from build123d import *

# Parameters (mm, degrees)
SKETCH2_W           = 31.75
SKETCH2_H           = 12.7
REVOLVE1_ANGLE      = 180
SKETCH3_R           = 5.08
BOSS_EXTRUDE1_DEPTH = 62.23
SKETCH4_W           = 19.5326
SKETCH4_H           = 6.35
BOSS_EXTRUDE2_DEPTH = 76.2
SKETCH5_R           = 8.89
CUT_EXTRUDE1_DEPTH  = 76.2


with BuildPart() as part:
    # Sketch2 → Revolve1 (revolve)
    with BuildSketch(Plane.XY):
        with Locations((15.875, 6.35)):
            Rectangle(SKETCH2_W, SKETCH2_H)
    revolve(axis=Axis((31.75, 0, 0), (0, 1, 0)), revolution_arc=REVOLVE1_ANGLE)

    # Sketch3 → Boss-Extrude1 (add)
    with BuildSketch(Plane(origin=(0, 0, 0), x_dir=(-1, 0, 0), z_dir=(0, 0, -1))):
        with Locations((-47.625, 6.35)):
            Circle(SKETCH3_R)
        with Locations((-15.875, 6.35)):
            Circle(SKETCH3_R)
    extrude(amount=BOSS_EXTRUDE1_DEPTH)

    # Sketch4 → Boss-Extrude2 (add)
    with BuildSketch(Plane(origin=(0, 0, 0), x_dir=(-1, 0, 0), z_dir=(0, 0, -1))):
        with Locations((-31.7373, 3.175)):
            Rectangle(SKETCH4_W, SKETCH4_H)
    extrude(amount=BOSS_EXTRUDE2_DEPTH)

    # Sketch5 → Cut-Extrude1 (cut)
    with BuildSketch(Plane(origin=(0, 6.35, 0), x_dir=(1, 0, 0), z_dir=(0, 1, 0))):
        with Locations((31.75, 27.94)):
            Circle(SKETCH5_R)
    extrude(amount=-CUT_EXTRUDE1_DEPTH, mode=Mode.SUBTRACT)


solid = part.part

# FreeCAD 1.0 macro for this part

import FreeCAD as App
import Part
import Sketcher

V = App.Vector
Q = App.Units.Quantity


def add_polygon(sketch, points):
    """Adds a closed chain of lines whose ends are joined by coincident constraints."""
    first, n = sketch.GeometryCount, len(points)
    for a, b in zip(points, points[1:] + points[:1]):
        sketch.addGeometry(Part.LineSegment(App.Vector(*a, 0), App.Vector(*b, 0)), False)
    for i in range(n):
        sketch.addConstraint(Sketcher.Constraint("Coincident", first + i, 2, first + (i + 1) % n, 1))

doc = App.newDocument("Part")
body = doc.addObject("PartDesign::Body", "Body")

# Sketch on XY plane
sketch1 = body.newObject("Sketcher::SketchObject", "Sketch")
sketch1.AttachmentSupport = (doc.getObject("XY_Plane"), [""])
sketch1.MapMode = "FlatFace"
add_polygon(sketch1, [(0, 13), (0, 0), (32, 0), (32, 13)])  # lines 0-3
sketch1.addGeometry(Part.LineSegment(V(32, 0, 0), V(32, 13, 0)), True)  # axis
sketch1.addConstraint(Sketcher.Constraint("Vertical", 0))
sketch1.addConstraint(Sketcher.Constraint("Horizontal", 1))
sketch1.addConstraint(Sketcher.Constraint("Vertical", 2))
sketch1.addConstraint(Sketcher.Constraint("Horizontal", 3))
sketch1.addConstraint(Sketcher.Constraint("Vertical", 4))
sketch1.addConstraint(Sketcher.Constraint("Coincident", 0, 2, -1, 1))
sketch1.addConstraint(Sketcher.Constraint("Coincident", 4, 1, 1, 2))
sketch1.addConstraint(Sketcher.Constraint("Horizontal", 3, 2, 4, 2))
sketch1.addConstraint(Sketcher.Constraint("DistanceY", 0, 2, 0, 1, Q("0.5 in")))
sketch1.addConstraint(Sketcher.Constraint("DistanceX", 1, 1, 1, 2, Q("1.25 in")))
revolution = body.newObject("PartDesign::Revolution", "Revolution")
revolution.Profile = sketch1
revolution.ReferenceAxis = (sketch1, ["Axis0"])
revolution.Angle = 180

# Sketch on XY plane
sketch2 = body.newObject("Sketcher::SketchObject", "Sketch001")
sketch2.AttachmentSupport = (doc.getObject("XY_Plane"), [""])
sketch2.MapMode = "FlatFace"
sketch2.addGeometry(Part.Circle(V(48, 6, 0), V(0, 0, 1), 5), False)
sketch2.addGeometry(Part.Circle(V(16, 6, 0), V(0, 0, 1), 5), False)
sketch2.addConstraint(Sketcher.Constraint("Equal", 0, 1))
sketch2.addConstraint(Sketcher.Constraint("Horizontal", 0, 3, 1, 3))
sketch2.addConstraint(Sketcher.Constraint("Diameter", 0, Q("0.4 in")))
sketch2.addConstraint(Sketcher.Constraint("DistanceY", -1, 1, 0, 3, Q("0.25 in")))
sketch2.addConstraint(Sketcher.Constraint("DistanceX", 1, 3, 0, 3, Q("1.25 in")))
sketch2.addConstraint(Sketcher.Constraint("DistanceX", -1, 1, 0, 3, Q("1.875 in")))
pad1 = body.newObject("PartDesign::Pad", "Pad")
pad1.Profile = sketch2
pad1.Length = Q("2.45 in")
pad1.Reversed = True

# Sketch on XY plane
sketch3 = body.newObject("Sketcher::SketchObject", "Sketch002")
sketch3.AttachmentSupport = (doc.getObject("XY_Plane"), [""])
sketch3.MapMode = "FlatFace"
add_polygon(sketch3, [(42, 6), (42, 0), (22, 0), (22, 6)])  # lines 0-3
sketch3.addConstraint(Sketcher.Constraint("Vertical", 0))
sketch3.addConstraint(Sketcher.Constraint("Horizontal", 1))
sketch3.addConstraint(Sketcher.Constraint("Vertical", 2))
sketch3.addConstraint(Sketcher.Constraint("Horizontal", 3))
sketch3.addConstraint(Sketcher.Constraint("PointOnObject", 0, 2, -1))
sketch3.addConstraint(Sketcher.Constraint("DistanceY", 0, 2, 0, 1, Q("0.25 in")))
sketch3.addConstraint(Sketcher.Constraint("DistanceX", 1, 2, 1, 1, Q("0.769 in")))
sketch3.addConstraint(Sketcher.Constraint("DistanceX", -1, 1, 0, 2, Q("1.634 in")))
pad2 = body.newObject("PartDesign::Pad", "Pad001")
pad2.Profile = sketch3
pad2.Length = Q("3 in")
pad2.Reversed = True

# Sketch on XZ plane
sketch4 = body.newObject("Sketcher::SketchObject", "Sketch003")
sketch4.AttachmentSupport = (doc.getObject("XZ_Plane"), [""])
sketch4.MapMode = "FlatFace"
sketch4.AttachmentOffset = App.Placement(V(0, 0, -0.25 * 25.4), App.Rotation())
sketch4.addGeometry(Part.Circle(V(32, -28, 0), V(0, 0, 1), 9), False)
sketch4.addConstraint(Sketcher.Constraint("Diameter", 0, Q("0.7 in")))
sketch4.addConstraint(Sketcher.Constraint("DistanceY", 0, 3, -1, 1, Q("1.1 in")))
sketch4.addConstraint(Sketcher.Constraint("DistanceX", -1, 1, 0, 3, Q("1.25 in")))
pocket1 = body.newObject("PartDesign::Pocket", "Pocket")
pocket1.Profile = sketch4
pocket1.Length = Q("3 in")
pocket1.Reversed = True

doc.recompute()
